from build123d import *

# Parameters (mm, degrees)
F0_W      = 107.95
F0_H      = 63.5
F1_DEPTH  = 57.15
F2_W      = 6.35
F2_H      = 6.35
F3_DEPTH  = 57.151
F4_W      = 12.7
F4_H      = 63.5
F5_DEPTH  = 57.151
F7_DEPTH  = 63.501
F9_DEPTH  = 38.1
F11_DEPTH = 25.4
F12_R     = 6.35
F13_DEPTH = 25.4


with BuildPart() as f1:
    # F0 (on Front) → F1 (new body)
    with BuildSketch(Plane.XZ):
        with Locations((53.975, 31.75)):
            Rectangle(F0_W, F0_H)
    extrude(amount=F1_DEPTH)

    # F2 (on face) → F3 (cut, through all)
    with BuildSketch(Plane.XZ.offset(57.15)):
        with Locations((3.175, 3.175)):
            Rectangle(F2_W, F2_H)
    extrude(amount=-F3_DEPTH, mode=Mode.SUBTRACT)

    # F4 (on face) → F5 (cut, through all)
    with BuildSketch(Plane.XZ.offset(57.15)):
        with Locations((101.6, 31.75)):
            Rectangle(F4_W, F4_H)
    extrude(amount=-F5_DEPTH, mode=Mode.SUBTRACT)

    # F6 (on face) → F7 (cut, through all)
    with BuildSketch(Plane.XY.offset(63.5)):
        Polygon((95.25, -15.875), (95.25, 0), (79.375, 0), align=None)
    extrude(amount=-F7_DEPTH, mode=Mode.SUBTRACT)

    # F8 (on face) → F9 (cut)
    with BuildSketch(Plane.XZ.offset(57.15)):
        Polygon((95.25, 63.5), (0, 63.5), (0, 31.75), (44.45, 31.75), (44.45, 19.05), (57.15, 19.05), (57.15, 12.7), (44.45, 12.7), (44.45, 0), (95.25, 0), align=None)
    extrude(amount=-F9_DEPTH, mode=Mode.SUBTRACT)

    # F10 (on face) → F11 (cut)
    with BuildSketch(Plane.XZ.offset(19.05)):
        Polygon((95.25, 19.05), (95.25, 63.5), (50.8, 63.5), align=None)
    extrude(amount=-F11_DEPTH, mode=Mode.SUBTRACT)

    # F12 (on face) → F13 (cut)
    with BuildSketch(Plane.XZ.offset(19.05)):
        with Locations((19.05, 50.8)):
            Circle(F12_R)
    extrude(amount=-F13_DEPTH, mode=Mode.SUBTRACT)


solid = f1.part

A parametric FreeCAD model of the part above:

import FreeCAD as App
import Part
import Sketcher
Q = App.Units.Quantity

doc = App.newDocument("Part")
body = doc.addObject("PartDesign::Body", "Body")

sketch1 = body.newObject("Sketcher::SketchObject", "Sketch")
sketch1.AttachmentSupport = (doc.getObject("XZ_Plane"), [""])
sketch1.MapMode = "FlatFace"
sketch1.addGeometry([
    Part.LineSegment(App.Vector(0, 64, 0), App.Vector(0, 0, 0)),
    Part.LineSegment(App.Vector(0, 0, 0), App.Vector(108, 0, 0)),
    Part.LineSegment(App.Vector(108, 0, 0), App.Vector(108, 64, 0)),
    Part.LineSegment(App.Vector(108, 64, 0), App.Vector(0, 64, 0)),
], False)
sketch1.addConstraint([
    Sketcher.Constraint("Coincident", 0, 2, 1, 1),
    Sketcher.Constraint("Coincident", 1, 2, 2, 1),
    Sketcher.Constraint("Coincident", 2, 2, 3, 1),
    Sketcher.Constraint("Coincident", 3, 2, 0, 1),
    Sketcher.Constraint("Vertical", 0),
    Sketcher.Constraint("Horizontal", 1),
    Sketcher.Constraint("Vertical", 2),
    Sketcher.Constraint("Horizontal", 3),
    Sketcher.Constraint("Coincident", 0, 2, -1, 1),
    Sketcher.Constraint("DistanceY", 0, 2, 0, 1, Q("2.5 in")),
    Sketcher.Constraint("DistanceX", 1, 1, 1, 2, Q("4.25 in")),
])
pad1 = body.newObject("PartDesign::Pad", "Pad")
pad1.Profile = sketch1
pad1.Length = Q("2.25 in")

sketch2 = body.newObject("Sketcher::SketchObject", "Sketch001")
sketch2.AttachmentSupport = (doc.getObject("XZ_Plane"), [""])
sketch2.MapMode = "FlatFace"
sketch2.AttachmentOffset = App.Placement(App.Vector(0, 0, 2.25 * 25.4), App.Rotation())
sketch2.addGeometry([
    Part.LineSegment(App.Vector(0, 6, 0), App.Vector(0, 0, 0)),
    Part.LineSegment(App.Vector(0, 0, 0), App.Vector(6, 0, 0)),
    Part.LineSegment(App.Vector(6, 0, 0), App.Vector(6, 6, 0)),
    Part.LineSegment(App.Vector(6, 6, 0), App.Vector(0, 6, 0)),
], False)
sketch2.addConstraint([
    Sketcher.Constraint("Coincident", 0, 2, 1, 1),
    Sketcher.Constraint("Coincident", 1, 2, 2, 1),
    Sketcher.Constraint("Coincident", 2, 2, 3, 1),
    Sketcher.Constraint("Coincident", 3, 2, 0, 1),
    Sketcher.Constraint("Vertical", 0),
    Sketcher.Constraint("Horizontal", 1),
    Sketcher.Constraint("Vertical", 2),
    Sketcher.Constraint("Horizontal", 3),
    Sketcher.Constraint("Coincident", 0, 2, -1, 1),
    Sketcher.Constraint("Equal", 3, 0),
    Sketcher.Constraint("DistanceX", 1, 1, 1, 2, Q("0.25 in")),
])
pocket1 = body.newObject("PartDesign::Pocket", "Pocket")
pocket1.Profile = sketch2
pocket1.Type = "ThroughAll"

sketch3 = body.newObject("Sketcher::SketchObject", "Sketch002")
sketch3.AttachmentSupport = (doc.getObject("XZ_Plane"), [""])
sketch3.MapMode = "FlatFace"
sketch3.AttachmentOffset = App.Placement(App.Vector(0, 0, 2.25 * 25.4), App.Rotation())
sketch3.addGeometry([
    Part.LineSegment(App.Vector(95, 64, 0), App.Vector(95, 0, 0)),
    Part.LineSegment(App.Vector(95, 0, 0), App.Vector(108, 0, 0)),
    Part.LineSegment(App.Vector(108, 0, 0), App.Vector(108, 64, 0)),
    Part.LineSegment(App.Vector(108, 64, 0), App.Vector(95, 64, 0)),
], False)
sketch3.addConstraint([
    Sketcher.Constraint("Coincident", 0, 2, 1, 1),
    Sketcher.Constraint("Coincident", 1, 2, 2, 1),
    Sketcher.Constraint("Coincident", 2, 2, 3, 1),
    Sketcher.Constraint("Coincident", 3, 2, 0, 1),
    Sketcher.Constraint("Vertical", 0),
    Sketcher.Constraint("Horizontal", 1),
    Sketcher.Constraint("Vertical", 2),
    Sketcher.Constraint("Horizontal", 3),
    Sketcher.Constraint("PointOnObject", 0, 2, -1),
    Sketcher.Constraint("DistanceX", 1, 1, 1, 2, Q("0.5 in")),
    Sketcher.Constraint("DistanceY", 0, 2, 0, 1, Q("2.5 in")),
    Sketcher.Constraint("DistanceX", -1, 1, 0, 2, Q("3.75 in")),
])
pocket2 = body.newObject("PartDesign::Pocket", "Pocket001")
pocket2.Profile = sketch3
pocket2.Type = "ThroughAll"

sketch4 = body.newObject("Sketcher::SketchObject", "Sketch003")
sketch4.AttachmentSupport = (doc.getObject("XY_Plane"), [""])
sketch4.MapMode = "FlatFace"
sketch4.AttachmentOffset = App.Placement(App.Vector(0, 0, 2.5 * 25.4), App.Rotation())
sketch4.addGeometry([
    Part.LineSegment(App.Vector(95, -16, 0), App.Vector(95, 0, 0)),
    Part.LineSegment(App.Vector(95, 0, 0), App.Vector(79, 0, 0)),
    Part.LineSegment(App.Vector(79, 0, 0), App.Vector(95, -16, 0)),
], False)
sketch4.addConstraint([
    Sketcher.Constraint("Coincident", 0, 2, 1, 1),
    Sketcher.Constraint("Coincident", 1, 2, 2, 1),
    Sketcher.Constraint("Coincident", 2, 2, 0, 1),
    Sketcher.Constraint("Vertical", 0),
    Sketcher.Constraint("Horizontal", 1),
    Sketcher.Constraint("PointOnObject", 0, 2, -1),
    Sketcher.Constraint("Equal", 1, 0),
    Sketcher.Constraint("DistanceX", 1, 2, 1, 1, Q("0.625 in")),
    Sketcher.Constraint("DistanceX", -1, 1, 0, 2, Q("3.75 in")),
])
pocket3 = body.newObject("PartDesign::Pocket", "Pocket002")
pocket3.Profile = sketch4
pocket3.Type = "ThroughAll"

sketch5 = body.newObject("Sketcher::SketchObject", "Sketch004")
sketch5.AttachmentSupport = (doc.getObject("XZ_Plane"), [""])
sketch5.MapMode = "FlatFace"
sketch5.AttachmentOffset = App.Placement(App.Vector(0, 0, 2.25 * 25.4), App.Rotation())
sketch5.addGeometry([
    Part.LineSegment(App.Vector(95, 64, 0), App.Vector(0, 64, 0)),
    Part.LineSegment(App.Vector(0, 64, 0), App.Vector(0, 32, 0)),
    Part.LineSegment(App.Vector(0, 32, 0), App.Vector(44, 32, 0)),
    Part.LineSegment(App.Vector(44, 32, 0), App.Vector(44, 19, 0)),
    Part.LineSegment(App.Vector(44, 19, 0), App.Vector(57, 19, 0)),
    Part.LineSegment(App.Vector(57, 19, 0), App.Vector(57, 13, 0)),
    Part.LineSegment(App.Vector(57, 13, 0), App.Vector(44, 13, 0)),
    Part.LineSegment(App.Vector(44, 13, 0), App.Vector(44, 0, 0)),
    Part.LineSegment(App.Vector(44, 0, 0), App.Vector(95, 0, 0)),
    Part.LineSegment(App.Vector(95, 0, 0), App.Vector(95, 64, 0)),
], False)
sketch5.addConstraint([
    Sketcher.Constraint("Coincident", 0, 2, 1, 1),
    Sketcher.Constraint("Coincident", 1, 2, 2, 1),
    Sketcher.Constraint("Coincident", 2, 2, 3, 1),
    Sketcher.Constraint("Coincident", 3, 2, 4, 1),
    Sketcher.Constraint("Coincident", 4, 2, 5, 1),
    Sketcher.Constraint("Coincident", 5, 2, 6, 1),
    Sketcher.Constraint("Coincident", 6, 2, 7, 1),
    Sketcher.Constraint("Coincident", 7, 2, 8, 1),
    Sketcher.Constraint("Coincident", 8, 2, 9, 1),
    Sketcher.Constraint("Coincident", 9, 2, 0, 1),
    Sketcher.Constraint("Horizontal", 0),
    Sketcher.Constraint("Vertical", 1),
    Sketcher.Constraint("Horizontal", 2),
    Sketcher.Constraint("Vertical", 3),
    Sketcher.Constraint("Horizontal", 4),
    Sketcher.Constraint("Vertical", 5),
    Sketcher.Constraint("Horizontal", 6),
    Sketcher.Constraint("Vertical", 7),
    Sketcher.Constraint("Horizontal", 8),
    Sketcher.Constraint("Vertical", 9),
    Sketcher.Constraint("PointOnObject", 0, 2, -2),
    Sketcher.Constraint("PointOnObject", 7, 2, -1),
    Sketcher.Constraint("Vertical", 3, 2, 6, 2),
    Sketcher.Constraint("Equal", 6, 3),
    Sketcher.Constraint("Equal", 3, 7),
    Sketcher.Constraint("DistanceX", 8, 1, 8, 2, Q("2 in")),
    Sketcher.Constraint("DistanceX", 4, 1, 4, 2, Q("0.5 in")),
    Sketcher.Constraint("DistanceY", 9, 1, 9, 2, Q("2.5 in")),
    Sketcher.Constraint("DistanceX", 0, 2, 0, 1, Q("3.75 in")),
    Sketcher.Constraint("DistanceY", 1, 2, 1, 1, Q("1.25 in")),
])
pocket4 = body.newObject("PartDesign::Pocket", "Pocket003")
pocket4.Profile = sketch5
pocket4.Length = Q("1.5 in")

sketch6 = body.newObject("Sketcher::SketchObject", "Sketch005")
sketch6.AttachmentSupport = (doc.getObject("XZ_Plane"), [""])
sketch6.MapMode = "FlatFace"
sketch6.AttachmentOffset = App.Placement(App.Vector(0, 0, 0.75 * 25.4), App.Rotation())
sketch6.addGeometry([
    Part.LineSegment(App.Vector(95, 19, 0), App.Vector(95, 64, 0)),
    Part.LineSegment(App.Vector(95, 64, 0), App.Vector(51, 64, 0)),
    Part.LineSegment(App.Vector(51, 64, 0), App.Vector(95, 19, 0)),
], False)
sketch6.addConstraint([
    Sketcher.Constraint("Coincident", 0, 2, 1, 1),
    Sketcher.Constraint("Coincident", 1, 2, 2, 1),
    Sketcher.Constraint("Coincident", 2, 2, 0, 1),
    Sketcher.Constraint("Vertical", 0),
    Sketcher.Constraint("Horizontal", 1),
    Sketcher.Constraint("Equal", 1, 0),
    Sketcher.Constraint("DistanceX", -1, 1, 1, 2, Q("2 in")),
    Sketcher.Constraint("DistanceX", 1, 2, 1, 1, Q("1.75 in")),
    Sketcher.Constraint("DistanceY", -1, 1, 0, 2, Q("2.5 in")),
])
pocket5 = body.newObject("PartDesign::Pocket", "Pocket004")
pocket5.Profile = sketch6
pocket5.Length = Q("1 in")

sketch7 = body.newObject("Sketcher::SketchObject", "Sketch006")
sketch7.AttachmentSupport = (doc.getObject("XZ_Plane"), [""])
sketch7.MapMode = "FlatFace"
sketch7.AttachmentOffset = App.Placement(App.Vector(0, 0, 0.75 * 25.4), App.Rotation())
sketch7.addGeometry(Part.Circle(App.Vector(19, 51, 0), App.Vector(0, 0, 1), 6), False)
sketch7.addConstraint([
    Sketcher.Constraint("Diameter", 0, Q("0.5 in")),
    Sketcher.Constraint("DistanceY", -1, 1, 0, 3, Q("2 in")),
    Sketcher.Constraint("DistanceX", -1, 1, 0, 3, Q("0.75 in")),
])
pocket6 = body.newObject("PartDesign::Pocket", "Pocket005")
pocket6.Profile = sketch7
pocket6.Length = Q("1 in")

doc.recompute()
